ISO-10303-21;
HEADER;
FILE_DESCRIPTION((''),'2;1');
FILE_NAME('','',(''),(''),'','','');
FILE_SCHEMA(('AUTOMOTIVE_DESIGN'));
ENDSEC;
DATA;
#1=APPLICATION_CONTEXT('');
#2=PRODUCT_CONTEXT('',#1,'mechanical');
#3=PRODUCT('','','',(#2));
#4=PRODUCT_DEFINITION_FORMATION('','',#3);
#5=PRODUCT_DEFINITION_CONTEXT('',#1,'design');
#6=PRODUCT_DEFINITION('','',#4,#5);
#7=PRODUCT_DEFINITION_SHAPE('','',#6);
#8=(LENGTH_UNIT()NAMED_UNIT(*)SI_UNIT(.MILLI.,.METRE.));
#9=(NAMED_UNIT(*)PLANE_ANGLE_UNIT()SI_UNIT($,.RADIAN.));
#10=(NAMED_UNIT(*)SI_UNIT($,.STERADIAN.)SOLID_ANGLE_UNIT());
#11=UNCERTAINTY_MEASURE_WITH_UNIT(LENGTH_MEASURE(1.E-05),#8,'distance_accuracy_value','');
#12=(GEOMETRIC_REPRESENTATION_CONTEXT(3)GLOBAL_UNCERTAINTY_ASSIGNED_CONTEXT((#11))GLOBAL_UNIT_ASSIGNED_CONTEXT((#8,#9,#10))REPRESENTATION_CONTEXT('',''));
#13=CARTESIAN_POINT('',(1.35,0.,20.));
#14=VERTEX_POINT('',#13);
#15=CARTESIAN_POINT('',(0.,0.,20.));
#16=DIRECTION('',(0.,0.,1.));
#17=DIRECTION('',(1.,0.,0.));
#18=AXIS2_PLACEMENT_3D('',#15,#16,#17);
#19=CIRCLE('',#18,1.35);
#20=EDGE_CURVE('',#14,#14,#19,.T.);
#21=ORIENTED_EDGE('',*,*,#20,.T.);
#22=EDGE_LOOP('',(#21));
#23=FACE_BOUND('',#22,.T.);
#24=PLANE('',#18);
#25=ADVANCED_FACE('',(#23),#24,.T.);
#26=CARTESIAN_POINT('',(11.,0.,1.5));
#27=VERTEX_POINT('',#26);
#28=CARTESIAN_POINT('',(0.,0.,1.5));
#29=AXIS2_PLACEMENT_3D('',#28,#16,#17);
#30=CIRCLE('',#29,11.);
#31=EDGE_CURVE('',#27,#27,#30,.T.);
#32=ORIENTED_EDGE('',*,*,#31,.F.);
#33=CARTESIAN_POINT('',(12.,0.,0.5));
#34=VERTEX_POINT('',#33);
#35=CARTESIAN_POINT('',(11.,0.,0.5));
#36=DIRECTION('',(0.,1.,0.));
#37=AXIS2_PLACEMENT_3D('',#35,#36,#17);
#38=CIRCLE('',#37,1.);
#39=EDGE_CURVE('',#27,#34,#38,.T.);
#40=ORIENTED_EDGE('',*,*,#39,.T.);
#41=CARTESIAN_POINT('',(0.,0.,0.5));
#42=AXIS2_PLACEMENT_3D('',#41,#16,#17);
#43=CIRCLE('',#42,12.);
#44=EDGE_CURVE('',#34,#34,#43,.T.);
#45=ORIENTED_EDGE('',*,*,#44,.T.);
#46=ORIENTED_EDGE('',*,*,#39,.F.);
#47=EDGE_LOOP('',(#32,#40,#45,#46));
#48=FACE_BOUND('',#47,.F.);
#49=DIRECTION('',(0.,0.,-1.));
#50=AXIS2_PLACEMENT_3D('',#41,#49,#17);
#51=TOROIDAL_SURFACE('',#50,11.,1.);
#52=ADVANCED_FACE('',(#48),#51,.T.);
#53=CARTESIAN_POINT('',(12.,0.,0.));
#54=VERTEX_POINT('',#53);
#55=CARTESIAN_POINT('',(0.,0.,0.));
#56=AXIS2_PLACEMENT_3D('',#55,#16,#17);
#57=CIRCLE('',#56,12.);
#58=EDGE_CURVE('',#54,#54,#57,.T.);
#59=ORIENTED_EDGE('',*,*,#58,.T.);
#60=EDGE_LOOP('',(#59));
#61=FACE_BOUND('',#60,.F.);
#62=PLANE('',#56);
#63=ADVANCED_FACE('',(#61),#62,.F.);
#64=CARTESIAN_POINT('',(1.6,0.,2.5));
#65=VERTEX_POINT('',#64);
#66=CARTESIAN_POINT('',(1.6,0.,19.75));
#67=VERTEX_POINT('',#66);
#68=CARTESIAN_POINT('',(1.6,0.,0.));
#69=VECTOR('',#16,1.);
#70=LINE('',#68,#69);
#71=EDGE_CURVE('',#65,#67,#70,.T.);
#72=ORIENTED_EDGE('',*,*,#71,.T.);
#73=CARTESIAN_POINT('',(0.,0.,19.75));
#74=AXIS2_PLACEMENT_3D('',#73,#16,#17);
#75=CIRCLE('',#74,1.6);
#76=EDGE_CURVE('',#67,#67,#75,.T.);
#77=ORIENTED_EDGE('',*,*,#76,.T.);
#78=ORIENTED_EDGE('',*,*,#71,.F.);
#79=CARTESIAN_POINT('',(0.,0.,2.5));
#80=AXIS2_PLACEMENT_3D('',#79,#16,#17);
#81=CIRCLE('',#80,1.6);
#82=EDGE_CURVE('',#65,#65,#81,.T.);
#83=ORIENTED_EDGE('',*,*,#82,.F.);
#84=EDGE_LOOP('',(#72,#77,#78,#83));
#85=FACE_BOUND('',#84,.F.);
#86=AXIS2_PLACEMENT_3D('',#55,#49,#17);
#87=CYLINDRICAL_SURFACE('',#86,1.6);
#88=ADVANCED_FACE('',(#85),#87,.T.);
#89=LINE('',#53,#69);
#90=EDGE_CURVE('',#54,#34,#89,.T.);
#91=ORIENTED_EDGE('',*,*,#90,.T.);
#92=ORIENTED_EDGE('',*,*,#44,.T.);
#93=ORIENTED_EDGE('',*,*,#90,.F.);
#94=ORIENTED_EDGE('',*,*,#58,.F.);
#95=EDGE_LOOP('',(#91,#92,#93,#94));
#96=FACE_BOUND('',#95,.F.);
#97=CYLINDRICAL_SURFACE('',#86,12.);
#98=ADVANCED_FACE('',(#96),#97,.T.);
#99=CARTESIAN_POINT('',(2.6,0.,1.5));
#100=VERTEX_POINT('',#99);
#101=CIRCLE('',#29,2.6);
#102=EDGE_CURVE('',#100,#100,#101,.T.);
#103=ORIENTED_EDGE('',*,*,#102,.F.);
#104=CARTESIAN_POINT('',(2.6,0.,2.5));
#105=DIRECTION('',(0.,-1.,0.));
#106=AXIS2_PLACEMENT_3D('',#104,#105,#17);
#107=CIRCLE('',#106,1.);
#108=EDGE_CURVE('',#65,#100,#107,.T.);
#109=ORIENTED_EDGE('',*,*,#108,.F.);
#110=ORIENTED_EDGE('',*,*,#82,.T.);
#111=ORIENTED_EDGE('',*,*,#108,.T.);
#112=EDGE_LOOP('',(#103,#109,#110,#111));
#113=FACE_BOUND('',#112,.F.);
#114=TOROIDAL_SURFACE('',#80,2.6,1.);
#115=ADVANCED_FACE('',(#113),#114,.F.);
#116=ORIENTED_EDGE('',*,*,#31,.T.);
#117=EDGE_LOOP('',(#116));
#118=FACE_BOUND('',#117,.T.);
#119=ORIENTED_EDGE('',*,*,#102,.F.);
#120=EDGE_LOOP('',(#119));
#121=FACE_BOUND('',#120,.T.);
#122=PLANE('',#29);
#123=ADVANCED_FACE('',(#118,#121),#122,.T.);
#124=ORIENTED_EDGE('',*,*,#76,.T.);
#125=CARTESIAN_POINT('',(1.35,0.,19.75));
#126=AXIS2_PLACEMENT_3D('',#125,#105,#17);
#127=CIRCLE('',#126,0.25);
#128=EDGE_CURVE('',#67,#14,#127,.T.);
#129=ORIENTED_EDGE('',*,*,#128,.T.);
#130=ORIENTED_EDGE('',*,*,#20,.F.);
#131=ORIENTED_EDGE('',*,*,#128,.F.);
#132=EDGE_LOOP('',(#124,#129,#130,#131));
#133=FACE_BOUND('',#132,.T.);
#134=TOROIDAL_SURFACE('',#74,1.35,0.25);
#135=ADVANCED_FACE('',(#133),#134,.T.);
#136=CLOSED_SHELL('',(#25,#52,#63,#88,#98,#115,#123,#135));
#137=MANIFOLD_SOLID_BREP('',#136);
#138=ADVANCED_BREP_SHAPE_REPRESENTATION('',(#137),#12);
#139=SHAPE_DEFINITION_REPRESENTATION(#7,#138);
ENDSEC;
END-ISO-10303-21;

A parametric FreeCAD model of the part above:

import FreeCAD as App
import Part
import Sketcher

V = App.Vector


def edges_at(feature, points):
    """Names of the edges that pass closest to the given points."""
    edges = feature.Shape.Edges
    near = lambda p: min(range(len(edges)), key=lambda i: edges[i].distToShape(Part.Vertex(*p))[0])
    return sorted({f"Edge{near(p) + 1}" for p in points})

doc = App.newDocument("Part")
body = doc.addObject("PartDesign::Body", "Body")

sketch1 = body.newObject("Sketcher::SketchObject", "Sketch")
sketch1.AttachmentSupport = (doc.getObject("XY_Plane"), [""])
sketch1.MapMode = "FlatFace"
sketch1.addGeometry(Part.Circle(V(0, 0, 0), V(0, 0, 1), 12), False)
sketch1.addGeometry(Part.Circle(V(0, 0, 0), V(0, 0, 1), 1.6), False)
sketch1.addConstraint(Sketcher.Constraint("Coincident", 0, 3, -1, 1))
sketch1.addConstraint(Sketcher.Constraint("Coincident", 1, 3, -1, 1))
sketch1.addConstraint(Sketcher.Constraint("Diameter", 0, 24.0))
sketch1.addConstraint(Sketcher.Constraint("Diameter", 1, 3.2))
pad1 = body.newObject("PartDesign::Pad", "Pad")
pad1.Profile = sketch1
pad1.Length = 1.5

sketch2 = body.newObject("Sketcher::SketchObject", "Sketch001")
sketch2.AttachmentSupport = (doc.getObject("XY_Plane"), [""])
sketch2.MapMode = "FlatFace"
sketch2.addGeometry(Part.Circle(V(0, 0, 0), V(0, 0, 1), 1.6), False)
sketch2.addConstraint(Sketcher.Constraint("Coincident", 0, 3, -1, 1))
sketch2.addConstraint(Sketcher.Constraint("Diameter", 0, 3.2))
pad2 = body.newObject("PartDesign::Pad", "Pad001")
pad2.Profile = sketch2
pad2.Length = 20
doc.recompute()

fillet = body.newObject("PartDesign::Fillet", "Fillet")
fillet.Base = (pad2, edges_at(pad2, [(-12, 0, 1.5), (-1.6, 0, 1.5)]))
fillet.Radius = 1
doc.recompute()

fillet2 = body.newObject("PartDesign::Fillet", "Fillet001")
fillet2.Base = (fillet, edges_at(fillet, [(-1.6, 0, 20)]))
fillet2.Radius = 0.25

doc.recompute()
